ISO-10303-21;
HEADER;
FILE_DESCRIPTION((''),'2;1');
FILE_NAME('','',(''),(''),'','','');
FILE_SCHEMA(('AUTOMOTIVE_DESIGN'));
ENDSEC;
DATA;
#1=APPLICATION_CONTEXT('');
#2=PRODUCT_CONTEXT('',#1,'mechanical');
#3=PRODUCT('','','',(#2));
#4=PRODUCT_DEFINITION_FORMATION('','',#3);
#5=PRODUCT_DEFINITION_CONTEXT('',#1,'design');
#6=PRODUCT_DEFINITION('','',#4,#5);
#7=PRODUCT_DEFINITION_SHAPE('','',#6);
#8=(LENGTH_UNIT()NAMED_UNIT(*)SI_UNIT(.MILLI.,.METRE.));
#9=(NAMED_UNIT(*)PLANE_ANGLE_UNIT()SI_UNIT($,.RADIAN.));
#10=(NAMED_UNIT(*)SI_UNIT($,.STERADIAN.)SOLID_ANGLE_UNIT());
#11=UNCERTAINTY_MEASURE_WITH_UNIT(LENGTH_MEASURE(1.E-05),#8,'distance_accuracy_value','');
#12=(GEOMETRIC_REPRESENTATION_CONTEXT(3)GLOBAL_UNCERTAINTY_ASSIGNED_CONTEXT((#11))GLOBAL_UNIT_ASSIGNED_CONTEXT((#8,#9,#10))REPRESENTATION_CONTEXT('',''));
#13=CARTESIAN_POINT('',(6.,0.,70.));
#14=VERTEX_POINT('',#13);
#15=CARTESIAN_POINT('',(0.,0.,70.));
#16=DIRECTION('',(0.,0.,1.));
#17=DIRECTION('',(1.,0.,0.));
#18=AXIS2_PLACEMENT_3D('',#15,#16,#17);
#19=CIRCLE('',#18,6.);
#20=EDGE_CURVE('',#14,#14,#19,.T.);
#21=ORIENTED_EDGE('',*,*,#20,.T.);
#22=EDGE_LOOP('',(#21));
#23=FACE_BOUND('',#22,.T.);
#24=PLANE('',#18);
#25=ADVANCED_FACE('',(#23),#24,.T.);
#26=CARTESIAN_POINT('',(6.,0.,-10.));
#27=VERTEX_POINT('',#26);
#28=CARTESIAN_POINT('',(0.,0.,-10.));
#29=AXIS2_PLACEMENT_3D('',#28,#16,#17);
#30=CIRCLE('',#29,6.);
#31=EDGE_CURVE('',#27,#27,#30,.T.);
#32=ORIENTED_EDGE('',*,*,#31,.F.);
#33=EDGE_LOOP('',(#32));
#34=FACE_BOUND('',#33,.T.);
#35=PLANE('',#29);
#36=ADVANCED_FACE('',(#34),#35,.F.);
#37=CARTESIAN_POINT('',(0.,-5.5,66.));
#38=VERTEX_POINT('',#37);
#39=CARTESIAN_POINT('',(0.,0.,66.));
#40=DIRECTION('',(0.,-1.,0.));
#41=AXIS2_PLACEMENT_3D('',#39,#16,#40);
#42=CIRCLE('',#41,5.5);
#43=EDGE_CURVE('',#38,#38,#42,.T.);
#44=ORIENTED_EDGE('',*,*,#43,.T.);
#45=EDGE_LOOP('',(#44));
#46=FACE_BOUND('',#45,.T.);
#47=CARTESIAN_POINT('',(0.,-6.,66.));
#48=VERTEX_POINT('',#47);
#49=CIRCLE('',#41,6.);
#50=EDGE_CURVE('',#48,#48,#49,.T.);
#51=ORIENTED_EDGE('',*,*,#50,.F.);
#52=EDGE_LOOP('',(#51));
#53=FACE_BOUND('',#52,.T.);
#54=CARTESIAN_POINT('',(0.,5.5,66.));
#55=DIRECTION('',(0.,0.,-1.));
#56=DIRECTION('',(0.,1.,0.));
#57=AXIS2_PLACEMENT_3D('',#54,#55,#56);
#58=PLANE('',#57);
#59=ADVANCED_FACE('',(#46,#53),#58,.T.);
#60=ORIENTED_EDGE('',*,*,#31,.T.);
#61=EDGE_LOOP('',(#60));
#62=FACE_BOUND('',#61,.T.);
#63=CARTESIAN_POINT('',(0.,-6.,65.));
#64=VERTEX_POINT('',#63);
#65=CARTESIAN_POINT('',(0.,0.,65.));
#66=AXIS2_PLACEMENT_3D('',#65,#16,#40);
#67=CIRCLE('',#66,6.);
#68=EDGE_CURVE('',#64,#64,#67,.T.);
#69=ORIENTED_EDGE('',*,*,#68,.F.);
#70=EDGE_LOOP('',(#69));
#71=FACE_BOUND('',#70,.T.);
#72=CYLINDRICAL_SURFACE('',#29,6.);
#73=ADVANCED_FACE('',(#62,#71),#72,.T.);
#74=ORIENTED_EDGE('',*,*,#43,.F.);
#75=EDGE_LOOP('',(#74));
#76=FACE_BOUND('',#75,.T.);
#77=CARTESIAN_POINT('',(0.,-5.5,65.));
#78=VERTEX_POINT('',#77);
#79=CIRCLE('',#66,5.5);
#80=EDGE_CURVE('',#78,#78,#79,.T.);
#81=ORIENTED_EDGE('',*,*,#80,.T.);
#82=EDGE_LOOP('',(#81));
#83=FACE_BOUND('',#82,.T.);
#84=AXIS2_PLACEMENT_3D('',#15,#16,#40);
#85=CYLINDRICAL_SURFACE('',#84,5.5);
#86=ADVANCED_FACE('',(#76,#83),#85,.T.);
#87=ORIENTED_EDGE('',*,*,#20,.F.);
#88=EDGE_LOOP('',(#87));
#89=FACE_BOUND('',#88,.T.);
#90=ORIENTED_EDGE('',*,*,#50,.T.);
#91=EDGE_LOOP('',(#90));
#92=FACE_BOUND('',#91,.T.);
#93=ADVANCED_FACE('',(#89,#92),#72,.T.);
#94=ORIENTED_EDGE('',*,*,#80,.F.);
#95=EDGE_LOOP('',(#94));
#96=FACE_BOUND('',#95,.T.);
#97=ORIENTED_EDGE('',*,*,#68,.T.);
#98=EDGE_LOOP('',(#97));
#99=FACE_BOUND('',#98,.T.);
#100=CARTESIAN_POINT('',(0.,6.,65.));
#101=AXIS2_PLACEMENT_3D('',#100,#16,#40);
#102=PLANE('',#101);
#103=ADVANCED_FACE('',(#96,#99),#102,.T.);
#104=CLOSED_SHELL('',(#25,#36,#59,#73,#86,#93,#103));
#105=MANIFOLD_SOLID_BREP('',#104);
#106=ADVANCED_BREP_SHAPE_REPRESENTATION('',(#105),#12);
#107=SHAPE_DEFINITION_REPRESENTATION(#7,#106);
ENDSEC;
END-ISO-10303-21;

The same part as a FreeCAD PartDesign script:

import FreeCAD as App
import Part
import Sketcher
from FreeCAD import Vector
Q = App.Units.Quantity

doc = App.newDocument("Part")
body = doc.addObject("PartDesign::Body", "Body")

sketch1 = doc.addObject("Sketcher::SketchObject", "Sketch")
body.addObject(sketch1)
sketch1.AttachmentSupport = (doc.XY_Plane, [""])
sketch1.MapMode = "FlatFace"
sketch1.addGeometry(Part.Circle(Vector(0, 0, 0), Vector(0, 0, 1), 6), False)
sketch1.addConstraint([
    Sketcher.Constraint("Coincident", 0, 3, -1, 1),
    Sketcher.Constraint("Diameter", 0, Q("12 mm")),
])
pad1 = doc.addObject("PartDesign::Pad", "Pad")
body.addObject(pad1)
pad1.Profile = sketch1
pad1.Type = "TwoLengths"
pad1.Length = 70
pad1.Length2 = 10

sketch2 = doc.addObject("Sketcher::SketchObject", "Sketch001")
body.addObject(sketch2)
sketch2.AttachmentSupport = (doc.YZ_Plane, [""])
sketch2.MapMode = "FlatFace"
sketch2.addGeometry([
    Part.LineSegment(Vector(6, 66, 0), Vector(5.5, 66, 0)),
    Part.LineSegment(Vector(5.5, 66, 0), Vector(5.5, 65, 0)),
    Part.LineSegment(Vector(5.5, 65, 0), Vector(6, 65, 0)),
    Part.LineSegment(Vector(6, 65, 0), Vector(6, 66, 0)),
], False)
sketch2.addConstraint([
    Sketcher.Constraint("Coincident", 0, 2, 1, 1),
    Sketcher.Constraint("Coincident", 1, 2, 2, 1),
    Sketcher.Constraint("Coincident", 2, 2, 3, 1),
    Sketcher.Constraint("Coincident", 3, 2, 0, 1),
    Sketcher.Constraint("Horizontal", 0),
    Sketcher.Constraint("Vertical", 1),
    Sketcher.Constraint("Horizontal", 2),
    Sketcher.Constraint("Vertical", 3),
    Sketcher.Constraint("DistanceY", 1, 2, 1, 1, Q("1 mm")),
    Sketcher.Constraint("DistanceX", 0, 2, 0, 1, Q("0.5 mm")),
    Sketcher.Constraint("DistanceY", -1, 1, 0, 2, Q("66 mm")),
    Sketcher.Constraint("DistanceX", -1, 1, 2, 2, Q("6 mm")),
])
groove = doc.addObject("PartDesign::Groove", "Groove")
body.addObject(groove)
groove.Profile = sketch2
groove.ReferenceAxis = (sketch2, ["V_Axis"])
groove.Angle = 360

doc.recompute()
